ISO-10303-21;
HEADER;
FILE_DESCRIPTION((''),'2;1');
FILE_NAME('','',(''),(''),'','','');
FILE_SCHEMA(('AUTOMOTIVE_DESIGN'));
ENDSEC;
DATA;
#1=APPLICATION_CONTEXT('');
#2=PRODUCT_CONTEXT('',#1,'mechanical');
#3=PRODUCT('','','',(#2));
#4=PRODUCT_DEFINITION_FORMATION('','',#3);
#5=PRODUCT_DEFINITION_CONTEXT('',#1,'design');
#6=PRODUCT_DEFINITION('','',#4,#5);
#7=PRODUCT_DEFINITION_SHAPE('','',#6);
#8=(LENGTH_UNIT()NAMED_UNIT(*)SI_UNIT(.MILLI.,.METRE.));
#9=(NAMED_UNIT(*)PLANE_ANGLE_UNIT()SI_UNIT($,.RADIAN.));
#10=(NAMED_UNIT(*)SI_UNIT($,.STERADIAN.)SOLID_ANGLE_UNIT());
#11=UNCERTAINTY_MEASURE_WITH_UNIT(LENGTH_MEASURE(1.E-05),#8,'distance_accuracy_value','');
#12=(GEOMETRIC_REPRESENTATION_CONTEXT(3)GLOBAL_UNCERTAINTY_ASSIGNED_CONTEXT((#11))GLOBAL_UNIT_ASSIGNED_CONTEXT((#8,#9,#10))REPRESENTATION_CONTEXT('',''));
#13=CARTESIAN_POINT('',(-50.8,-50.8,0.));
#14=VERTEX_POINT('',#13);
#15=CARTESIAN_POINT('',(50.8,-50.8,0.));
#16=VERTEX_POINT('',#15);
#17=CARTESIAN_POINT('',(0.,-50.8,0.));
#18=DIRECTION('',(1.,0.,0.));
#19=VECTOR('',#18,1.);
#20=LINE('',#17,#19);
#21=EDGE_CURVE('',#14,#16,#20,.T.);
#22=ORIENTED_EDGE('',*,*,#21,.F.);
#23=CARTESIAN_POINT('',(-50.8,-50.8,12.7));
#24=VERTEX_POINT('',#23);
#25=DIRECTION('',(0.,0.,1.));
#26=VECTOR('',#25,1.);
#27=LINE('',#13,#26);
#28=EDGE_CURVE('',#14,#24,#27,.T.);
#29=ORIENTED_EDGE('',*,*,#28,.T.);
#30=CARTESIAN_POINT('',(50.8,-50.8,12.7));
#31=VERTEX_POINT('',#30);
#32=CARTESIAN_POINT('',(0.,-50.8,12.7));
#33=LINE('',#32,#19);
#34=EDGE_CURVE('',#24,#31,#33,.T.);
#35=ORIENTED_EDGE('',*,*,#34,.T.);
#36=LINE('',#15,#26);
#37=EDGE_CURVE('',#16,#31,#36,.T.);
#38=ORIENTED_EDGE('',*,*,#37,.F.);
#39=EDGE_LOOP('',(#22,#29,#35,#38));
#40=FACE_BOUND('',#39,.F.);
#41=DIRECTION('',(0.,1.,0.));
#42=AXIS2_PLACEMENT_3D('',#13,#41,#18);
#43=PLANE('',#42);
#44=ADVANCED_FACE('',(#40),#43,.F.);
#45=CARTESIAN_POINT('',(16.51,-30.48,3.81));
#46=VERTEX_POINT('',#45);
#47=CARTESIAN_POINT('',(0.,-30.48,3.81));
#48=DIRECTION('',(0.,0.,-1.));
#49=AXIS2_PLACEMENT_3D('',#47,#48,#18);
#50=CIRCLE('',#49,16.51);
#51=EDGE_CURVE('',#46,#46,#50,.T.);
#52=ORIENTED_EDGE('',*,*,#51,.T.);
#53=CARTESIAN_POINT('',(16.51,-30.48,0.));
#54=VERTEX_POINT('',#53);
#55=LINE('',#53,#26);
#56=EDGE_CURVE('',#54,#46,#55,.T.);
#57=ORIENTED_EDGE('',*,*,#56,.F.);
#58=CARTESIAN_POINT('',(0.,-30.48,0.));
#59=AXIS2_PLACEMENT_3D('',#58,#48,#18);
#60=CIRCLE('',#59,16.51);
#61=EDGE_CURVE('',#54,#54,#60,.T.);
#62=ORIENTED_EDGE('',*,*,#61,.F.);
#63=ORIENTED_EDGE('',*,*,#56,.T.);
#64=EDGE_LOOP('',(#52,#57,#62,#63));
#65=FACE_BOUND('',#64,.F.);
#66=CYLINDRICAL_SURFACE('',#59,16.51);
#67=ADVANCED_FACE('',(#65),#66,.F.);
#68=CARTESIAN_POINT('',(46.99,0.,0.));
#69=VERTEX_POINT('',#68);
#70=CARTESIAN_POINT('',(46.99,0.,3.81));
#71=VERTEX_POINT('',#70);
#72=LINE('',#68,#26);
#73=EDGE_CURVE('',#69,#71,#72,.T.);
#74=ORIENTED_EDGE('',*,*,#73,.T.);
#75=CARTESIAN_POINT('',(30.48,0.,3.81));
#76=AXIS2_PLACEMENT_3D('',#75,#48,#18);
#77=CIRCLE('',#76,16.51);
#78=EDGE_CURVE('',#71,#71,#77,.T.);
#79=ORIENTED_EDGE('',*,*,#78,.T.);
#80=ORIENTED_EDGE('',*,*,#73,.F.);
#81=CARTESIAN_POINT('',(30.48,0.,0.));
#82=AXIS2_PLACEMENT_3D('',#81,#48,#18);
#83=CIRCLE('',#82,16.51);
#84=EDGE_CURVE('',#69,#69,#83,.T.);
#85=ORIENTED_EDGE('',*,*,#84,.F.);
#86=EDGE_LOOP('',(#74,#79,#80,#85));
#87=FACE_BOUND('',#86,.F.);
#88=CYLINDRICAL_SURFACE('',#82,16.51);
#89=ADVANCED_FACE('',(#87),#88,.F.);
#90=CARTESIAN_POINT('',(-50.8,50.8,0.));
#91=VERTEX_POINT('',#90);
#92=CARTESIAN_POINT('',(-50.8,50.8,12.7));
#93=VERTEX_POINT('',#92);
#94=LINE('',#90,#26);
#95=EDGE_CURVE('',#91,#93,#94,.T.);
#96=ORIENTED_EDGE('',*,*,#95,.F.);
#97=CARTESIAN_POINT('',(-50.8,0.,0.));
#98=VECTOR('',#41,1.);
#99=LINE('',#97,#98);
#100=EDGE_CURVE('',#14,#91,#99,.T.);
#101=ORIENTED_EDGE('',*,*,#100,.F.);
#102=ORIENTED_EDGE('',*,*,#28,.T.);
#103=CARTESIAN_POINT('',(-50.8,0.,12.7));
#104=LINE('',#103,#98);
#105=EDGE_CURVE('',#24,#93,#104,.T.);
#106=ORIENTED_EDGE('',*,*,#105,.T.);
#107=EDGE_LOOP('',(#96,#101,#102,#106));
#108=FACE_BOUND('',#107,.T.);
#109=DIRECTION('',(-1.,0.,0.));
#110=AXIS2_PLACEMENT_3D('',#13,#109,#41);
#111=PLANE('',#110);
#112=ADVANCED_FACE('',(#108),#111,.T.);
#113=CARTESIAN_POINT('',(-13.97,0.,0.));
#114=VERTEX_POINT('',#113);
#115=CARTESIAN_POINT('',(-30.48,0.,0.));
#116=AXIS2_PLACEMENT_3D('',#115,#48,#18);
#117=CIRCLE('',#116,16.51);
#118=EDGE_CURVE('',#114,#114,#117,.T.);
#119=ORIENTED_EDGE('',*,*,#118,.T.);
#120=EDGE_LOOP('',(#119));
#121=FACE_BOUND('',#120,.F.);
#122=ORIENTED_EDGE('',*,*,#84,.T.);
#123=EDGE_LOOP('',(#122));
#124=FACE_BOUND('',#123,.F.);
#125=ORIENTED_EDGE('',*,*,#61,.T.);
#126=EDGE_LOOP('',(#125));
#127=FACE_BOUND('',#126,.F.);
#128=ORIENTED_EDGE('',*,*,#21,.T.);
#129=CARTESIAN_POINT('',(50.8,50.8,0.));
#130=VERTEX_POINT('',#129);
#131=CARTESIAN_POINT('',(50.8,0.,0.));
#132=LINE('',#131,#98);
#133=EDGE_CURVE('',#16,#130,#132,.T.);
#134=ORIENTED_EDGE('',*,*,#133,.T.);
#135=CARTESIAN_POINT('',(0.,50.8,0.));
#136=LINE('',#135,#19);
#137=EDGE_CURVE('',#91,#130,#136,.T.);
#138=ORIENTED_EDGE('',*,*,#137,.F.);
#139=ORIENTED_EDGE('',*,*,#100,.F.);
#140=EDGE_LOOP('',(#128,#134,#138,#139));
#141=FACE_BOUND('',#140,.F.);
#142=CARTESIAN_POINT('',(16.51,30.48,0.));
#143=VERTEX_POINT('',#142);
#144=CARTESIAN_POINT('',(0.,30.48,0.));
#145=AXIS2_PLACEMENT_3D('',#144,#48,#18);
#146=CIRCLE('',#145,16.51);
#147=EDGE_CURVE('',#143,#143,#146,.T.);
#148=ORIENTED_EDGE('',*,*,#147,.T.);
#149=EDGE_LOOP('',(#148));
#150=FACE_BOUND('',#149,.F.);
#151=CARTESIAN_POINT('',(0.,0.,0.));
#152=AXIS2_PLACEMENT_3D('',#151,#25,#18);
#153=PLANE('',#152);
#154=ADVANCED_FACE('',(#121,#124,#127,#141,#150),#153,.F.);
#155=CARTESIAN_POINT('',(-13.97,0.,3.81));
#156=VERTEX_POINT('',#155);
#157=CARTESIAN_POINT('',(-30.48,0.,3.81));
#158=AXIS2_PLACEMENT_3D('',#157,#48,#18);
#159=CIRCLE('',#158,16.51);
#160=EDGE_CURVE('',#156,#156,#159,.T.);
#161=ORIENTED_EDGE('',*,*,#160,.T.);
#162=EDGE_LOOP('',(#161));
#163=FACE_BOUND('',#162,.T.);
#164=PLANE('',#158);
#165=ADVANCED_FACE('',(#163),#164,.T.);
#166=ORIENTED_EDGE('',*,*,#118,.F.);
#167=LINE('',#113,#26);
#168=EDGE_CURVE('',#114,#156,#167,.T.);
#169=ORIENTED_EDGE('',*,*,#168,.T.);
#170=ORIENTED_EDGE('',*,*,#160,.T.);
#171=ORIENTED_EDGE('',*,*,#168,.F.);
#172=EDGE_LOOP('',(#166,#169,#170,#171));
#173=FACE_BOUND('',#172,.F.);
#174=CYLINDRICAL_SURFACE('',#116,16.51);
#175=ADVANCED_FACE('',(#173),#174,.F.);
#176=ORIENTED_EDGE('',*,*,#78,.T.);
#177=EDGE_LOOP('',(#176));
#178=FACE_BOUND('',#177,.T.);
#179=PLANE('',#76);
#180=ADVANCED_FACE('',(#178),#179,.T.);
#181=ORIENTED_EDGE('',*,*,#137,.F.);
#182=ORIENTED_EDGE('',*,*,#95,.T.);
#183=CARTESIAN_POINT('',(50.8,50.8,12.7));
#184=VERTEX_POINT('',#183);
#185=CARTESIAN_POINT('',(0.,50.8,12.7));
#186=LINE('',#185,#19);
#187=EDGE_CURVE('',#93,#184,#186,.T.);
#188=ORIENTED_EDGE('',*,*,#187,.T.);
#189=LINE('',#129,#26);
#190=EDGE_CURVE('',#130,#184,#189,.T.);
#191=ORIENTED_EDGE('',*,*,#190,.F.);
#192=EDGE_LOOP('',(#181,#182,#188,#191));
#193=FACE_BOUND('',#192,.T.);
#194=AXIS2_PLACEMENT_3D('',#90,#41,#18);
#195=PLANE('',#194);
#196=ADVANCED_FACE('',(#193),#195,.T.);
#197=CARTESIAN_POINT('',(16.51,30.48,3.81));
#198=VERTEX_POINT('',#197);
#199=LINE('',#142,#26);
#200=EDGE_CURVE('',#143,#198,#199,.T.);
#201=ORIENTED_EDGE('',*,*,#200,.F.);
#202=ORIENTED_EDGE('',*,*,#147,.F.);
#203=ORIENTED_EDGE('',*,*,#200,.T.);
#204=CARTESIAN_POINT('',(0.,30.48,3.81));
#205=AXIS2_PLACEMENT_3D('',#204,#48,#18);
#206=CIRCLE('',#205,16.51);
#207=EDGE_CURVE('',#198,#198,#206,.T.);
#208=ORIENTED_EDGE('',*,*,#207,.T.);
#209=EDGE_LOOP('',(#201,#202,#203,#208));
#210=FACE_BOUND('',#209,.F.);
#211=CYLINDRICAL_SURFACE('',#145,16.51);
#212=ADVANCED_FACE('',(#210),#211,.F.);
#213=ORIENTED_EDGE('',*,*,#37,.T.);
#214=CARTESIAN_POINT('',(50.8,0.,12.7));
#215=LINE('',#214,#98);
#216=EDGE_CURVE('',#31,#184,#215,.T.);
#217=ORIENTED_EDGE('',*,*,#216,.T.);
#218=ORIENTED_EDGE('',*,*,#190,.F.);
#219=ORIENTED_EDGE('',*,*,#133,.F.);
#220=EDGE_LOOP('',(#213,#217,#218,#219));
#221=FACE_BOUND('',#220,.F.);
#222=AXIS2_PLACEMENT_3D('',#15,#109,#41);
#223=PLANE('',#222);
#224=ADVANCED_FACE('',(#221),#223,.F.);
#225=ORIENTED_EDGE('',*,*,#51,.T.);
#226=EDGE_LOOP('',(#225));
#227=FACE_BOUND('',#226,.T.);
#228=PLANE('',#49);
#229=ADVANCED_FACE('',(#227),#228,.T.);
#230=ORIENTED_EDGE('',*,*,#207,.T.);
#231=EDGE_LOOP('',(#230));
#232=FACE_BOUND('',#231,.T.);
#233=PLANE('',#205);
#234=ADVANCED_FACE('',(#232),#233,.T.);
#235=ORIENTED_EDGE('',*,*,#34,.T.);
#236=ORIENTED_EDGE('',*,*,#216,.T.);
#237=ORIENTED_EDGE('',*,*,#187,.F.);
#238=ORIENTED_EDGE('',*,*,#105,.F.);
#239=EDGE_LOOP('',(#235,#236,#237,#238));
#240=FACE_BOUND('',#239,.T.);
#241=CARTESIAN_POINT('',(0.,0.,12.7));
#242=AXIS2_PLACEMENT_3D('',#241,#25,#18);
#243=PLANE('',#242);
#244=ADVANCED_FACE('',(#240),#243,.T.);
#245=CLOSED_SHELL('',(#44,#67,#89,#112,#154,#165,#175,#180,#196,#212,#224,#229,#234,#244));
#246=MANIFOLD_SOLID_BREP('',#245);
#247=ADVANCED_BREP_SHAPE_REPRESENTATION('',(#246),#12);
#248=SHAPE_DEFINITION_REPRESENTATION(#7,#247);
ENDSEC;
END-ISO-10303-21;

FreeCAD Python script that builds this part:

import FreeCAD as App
import Part
import Sketcher
Q = App.Units.Quantity

doc = App.newDocument("Part")
params = doc.addObject("Spreadsheet::Sheet", "Params")
for row, (alias, value) in enumerate([
    ("sketch1_width", "4 in"),
    ("pad1_length", "0.5 in"),
    ("sketch2_diameter", "1.3 in"),
    ("pocket1_length", "0.15 in"),
], start=1):
    params.set(f"A{row}", alias)
    params.set(f"B{row}", "=" + value)
    params.setAlias(f"B{row}", alias)

body = doc.addObject("PartDesign::Body", "Body")

sketch1 = body.newObject("Sketcher::SketchObject", "Sketch")
sketch1.AttachmentSupport = (doc.getObject("XY_Plane"), [""])
sketch1.MapMode = "FlatFace"
sketch1.addGeometry(Part.LineSegment(App.Vector(-50.8, 50.8, 0), App.Vector(-50.8, -50.8, 0)), False)
sketch1.addGeometry(Part.LineSegment(App.Vector(-50.8, -50.8, 0), App.Vector(50.8, -50.8, 0)), False)
sketch1.addGeometry(Part.LineSegment(App.Vector(50.8, -50.8, 0), App.Vector(50.8, 50.8, 0)), False)
sketch1.addGeometry(Part.LineSegment(App.Vector(50.8, 50.8, 0), App.Vector(-50.8, 50.8, 0)), False)
sketch1.addConstraint(Sketcher.Constraint("Coincident", 0, 2, 1, 1))
sketch1.addConstraint(Sketcher.Constraint("Coincident", 1, 2, 2, 1))
sketch1.addConstraint(Sketcher.Constraint("Coincident", 2, 2, 3, 1))
sketch1.addConstraint(Sketcher.Constraint("Coincident", 3, 2, 0, 1))
sketch1.addConstraint(Sketcher.Constraint("Vertical", 0))
sketch1.addConstraint(Sketcher.Constraint("Horizontal", 1))
sketch1.addConstraint(Sketcher.Constraint("Vertical", 2))
sketch1.addConstraint(Sketcher.Constraint("Horizontal", 3))
sketch1.addConstraint(Sketcher.Constraint("Symmetric", 0, 2, 2, 2, -1, 1))
sketch1.addConstraint(Sketcher.Constraint("Equal", 3, 0))
sketch1.addConstraint(Sketcher.Constraint("DistanceX", 1, 1, 1, 2, Q("4 in")))
sketch1.setExpression("Constraints[10]", "Params.sketch1_width")
pad1 = body.newObject("PartDesign::Pad", "Pad")
pad1.Profile = sketch1
pad1.setExpression("Length", "Params.pad1_length")

sketch2 = body.newObject("Sketcher::SketchObject", "Sketch001")
sketch2.AttachmentSupport = (doc.getObject("XY_Plane"), [""])
sketch2.MapMode = "FlatFace"
sketch2.addGeometry(Part.Circle(App.Vector(-30.48, 0, 0), App.Vector(0, 0, 1), 16.51), False)
sketch2.addGeometry(Part.Circle(App.Vector(0, -30.48, 0), App.Vector(0, 0, 1), 16.51), False)
sketch2.addGeometry(Part.Circle(App.Vector(30.48, 0, 0), App.Vector(0, 0, 1), 16.51), False)
sketch2.addGeometry(Part.Circle(App.Vector(0, 30.48, 0), App.Vector(0, 0, 1), 16.51), False)
sketch2.addConstraint(Sketcher.Constraint("Equal", 0, 1))
sketch2.addConstraint(Sketcher.Constraint("Equal", 1, 2))
sketch2.addConstraint(Sketcher.Constraint("Equal", 2, 3))
sketch2.addConstraint(Sketcher.Constraint("Symmetric", 0, 3, 2, 3, -1, 1))
sketch2.addConstraint(Sketcher.Constraint("Symmetric", 1, 3, 3, 3, -1, 1))
sketch2.addConstraint(Sketcher.Constraint("PointOnObject", 0, 3, -1))
sketch2.addConstraint(Sketcher.Constraint("PointOnObject", 1, 3, -2))
sketch2.addConstraint(Sketcher.Constraint("Diameter", 0, Q("1.3 in")))
sketch2.addConstraint(Sketcher.Constraint("DistanceX", 0, 3, -1, 1, Q("1.2 in")))
sketch2.addConstraint(Sketcher.Constraint("DistanceY", 1, 3, -1, 1, Q("1.2 in")))
sketch2.setExpression("Constraints[7]", "Params.sketch2_diameter")
pocket1 = body.newObject("PartDesign::Pocket", "Pocket")
pocket1.Profile = sketch2
pocket1.setExpression("Length", "Params.pocket1_length")
pocket1.Reversed = True

doc.recompute()
